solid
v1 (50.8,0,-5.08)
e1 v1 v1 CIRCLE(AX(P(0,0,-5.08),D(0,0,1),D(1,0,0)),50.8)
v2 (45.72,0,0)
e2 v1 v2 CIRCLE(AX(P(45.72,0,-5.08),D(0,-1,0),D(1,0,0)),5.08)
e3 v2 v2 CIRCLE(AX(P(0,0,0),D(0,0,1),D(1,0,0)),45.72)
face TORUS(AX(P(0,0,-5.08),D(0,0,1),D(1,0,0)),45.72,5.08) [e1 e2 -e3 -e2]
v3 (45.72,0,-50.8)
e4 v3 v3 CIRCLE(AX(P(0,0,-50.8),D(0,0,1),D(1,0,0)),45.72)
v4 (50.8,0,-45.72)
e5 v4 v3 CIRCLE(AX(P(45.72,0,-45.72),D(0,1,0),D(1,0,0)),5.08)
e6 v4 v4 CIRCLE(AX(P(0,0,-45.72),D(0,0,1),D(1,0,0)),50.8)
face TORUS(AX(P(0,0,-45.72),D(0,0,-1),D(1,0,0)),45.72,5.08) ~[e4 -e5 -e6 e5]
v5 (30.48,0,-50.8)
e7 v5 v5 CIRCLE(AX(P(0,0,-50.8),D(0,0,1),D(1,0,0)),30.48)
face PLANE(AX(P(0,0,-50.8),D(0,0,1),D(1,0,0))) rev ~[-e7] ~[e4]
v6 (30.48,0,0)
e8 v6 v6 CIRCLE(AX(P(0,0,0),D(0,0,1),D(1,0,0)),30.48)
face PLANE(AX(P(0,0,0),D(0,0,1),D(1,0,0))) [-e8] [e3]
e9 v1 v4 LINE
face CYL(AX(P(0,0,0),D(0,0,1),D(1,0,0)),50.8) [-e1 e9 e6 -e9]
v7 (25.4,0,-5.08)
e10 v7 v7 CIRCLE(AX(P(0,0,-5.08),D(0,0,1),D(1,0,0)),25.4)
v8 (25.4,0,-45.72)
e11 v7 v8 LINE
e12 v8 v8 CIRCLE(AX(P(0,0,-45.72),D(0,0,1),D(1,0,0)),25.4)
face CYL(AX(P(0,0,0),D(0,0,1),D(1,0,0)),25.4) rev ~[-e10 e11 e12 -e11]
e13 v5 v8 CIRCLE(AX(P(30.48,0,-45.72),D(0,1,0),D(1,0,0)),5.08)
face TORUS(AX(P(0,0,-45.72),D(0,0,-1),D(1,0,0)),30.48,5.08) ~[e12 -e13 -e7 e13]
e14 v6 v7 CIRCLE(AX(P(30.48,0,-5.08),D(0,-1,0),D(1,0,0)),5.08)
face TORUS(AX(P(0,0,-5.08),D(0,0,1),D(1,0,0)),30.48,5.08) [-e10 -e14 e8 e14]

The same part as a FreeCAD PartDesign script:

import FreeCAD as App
import Part
import Sketcher

V = App.Vector
Q = App.Units.Quantity


def edges_at(feature, points):
    """Names of the edges that pass closest to the given points."""
    edges = feature.Shape.Edges
    near = lambda p: min(range(len(edges)), key=lambda i: edges[i].distToShape(Part.Vertex(*p))[0])
    return sorted({f"Edge{near(p) + 1}" for p in points})

doc = App.newDocument("Part")
params = doc.addObject("Spreadsheet::Sheet", "Params")
for row, (alias, value) in enumerate([
    ("sketch1_diameter", "4 in"),
    ("pad1_length", "2 in"),
    ("sketch2_diameter", "2 in"),
    ("pocket1_length", "2 in"),
    ("fillet_radius", "0.2 in"),
    ("fillet2_radius", "0.2 in"),
], start=1):
    params.set(f"A{row}", alias)
    params.set(f"B{row}", "=" + value)
    params.setAlias(f"B{row}", alias)

body = doc.addObject("PartDesign::Body", "Body")

# Sketch on XY plane
sketch1 = body.newObject("Sketcher::SketchObject", "Sketch")
sketch1.AttachmentSupport = (doc.getObject("XY_Plane"), [""])
sketch1.MapMode = "FlatFace"
sketch1.addGeometry(Part.Circle(V(0, 0, 0), V(0, 0, 1), 51), False)
sketch1.addConstraint(Sketcher.Constraint("Coincident", 0, 3, -1, 1))
sketch1.addConstraint(Sketcher.Constraint("Diameter", 0, Q("4 in")))
sketch1.setExpression("Constraints[1]", "Params.sketch1_diameter")
pad1 = body.newObject("PartDesign::Pad", "Pad")
pad1.Profile = sketch1
pad1.setExpression("Length", "Params.pad1_length")
pad1.Reversed = True

# Sketch on XY plane
sketch2 = body.newObject("Sketcher::SketchObject", "Sketch001")
sketch2.AttachmentSupport = (doc.getObject("XY_Plane"), [""])
sketch2.MapMode = "FlatFace"
sketch2.addGeometry(Part.Circle(V(0, 0, 0), V(0, 0, 1), 25), False)
sketch2.addConstraint(Sketcher.Constraint("Coincident", 0, 3, -1, 1))
sketch2.addConstraint(Sketcher.Constraint("Diameter", 0, Q("2 in")))
sketch2.setExpression("Constraints[1]", "Params.sketch2_diameter")
pocket1 = body.newObject("PartDesign::Pocket", "Pocket")
pocket1.Profile = sketch2
pocket1.setExpression("Length", "Params.pocket1_length")
doc.recompute()

fillet = body.newObject("PartDesign::Fillet", "Fillet")
fillet.Base = (pocket1, edges_at(pocket1, [(-50.8, 0, 0), (-25.4, 0, 0)]))
fillet.setExpression("Radius", "Params.fillet_radius")
doc.recompute()

fillet2 = body.newObject("PartDesign::Fillet", "Fillet001")
fillet2.Base = (fillet, edges_at(fillet, [(-50.8, 0, -50.8), (-25.4, 0, -50.8)]))
fillet2.setExpression("Radius", "Params.fillet2_radius")

doc.recompute()
